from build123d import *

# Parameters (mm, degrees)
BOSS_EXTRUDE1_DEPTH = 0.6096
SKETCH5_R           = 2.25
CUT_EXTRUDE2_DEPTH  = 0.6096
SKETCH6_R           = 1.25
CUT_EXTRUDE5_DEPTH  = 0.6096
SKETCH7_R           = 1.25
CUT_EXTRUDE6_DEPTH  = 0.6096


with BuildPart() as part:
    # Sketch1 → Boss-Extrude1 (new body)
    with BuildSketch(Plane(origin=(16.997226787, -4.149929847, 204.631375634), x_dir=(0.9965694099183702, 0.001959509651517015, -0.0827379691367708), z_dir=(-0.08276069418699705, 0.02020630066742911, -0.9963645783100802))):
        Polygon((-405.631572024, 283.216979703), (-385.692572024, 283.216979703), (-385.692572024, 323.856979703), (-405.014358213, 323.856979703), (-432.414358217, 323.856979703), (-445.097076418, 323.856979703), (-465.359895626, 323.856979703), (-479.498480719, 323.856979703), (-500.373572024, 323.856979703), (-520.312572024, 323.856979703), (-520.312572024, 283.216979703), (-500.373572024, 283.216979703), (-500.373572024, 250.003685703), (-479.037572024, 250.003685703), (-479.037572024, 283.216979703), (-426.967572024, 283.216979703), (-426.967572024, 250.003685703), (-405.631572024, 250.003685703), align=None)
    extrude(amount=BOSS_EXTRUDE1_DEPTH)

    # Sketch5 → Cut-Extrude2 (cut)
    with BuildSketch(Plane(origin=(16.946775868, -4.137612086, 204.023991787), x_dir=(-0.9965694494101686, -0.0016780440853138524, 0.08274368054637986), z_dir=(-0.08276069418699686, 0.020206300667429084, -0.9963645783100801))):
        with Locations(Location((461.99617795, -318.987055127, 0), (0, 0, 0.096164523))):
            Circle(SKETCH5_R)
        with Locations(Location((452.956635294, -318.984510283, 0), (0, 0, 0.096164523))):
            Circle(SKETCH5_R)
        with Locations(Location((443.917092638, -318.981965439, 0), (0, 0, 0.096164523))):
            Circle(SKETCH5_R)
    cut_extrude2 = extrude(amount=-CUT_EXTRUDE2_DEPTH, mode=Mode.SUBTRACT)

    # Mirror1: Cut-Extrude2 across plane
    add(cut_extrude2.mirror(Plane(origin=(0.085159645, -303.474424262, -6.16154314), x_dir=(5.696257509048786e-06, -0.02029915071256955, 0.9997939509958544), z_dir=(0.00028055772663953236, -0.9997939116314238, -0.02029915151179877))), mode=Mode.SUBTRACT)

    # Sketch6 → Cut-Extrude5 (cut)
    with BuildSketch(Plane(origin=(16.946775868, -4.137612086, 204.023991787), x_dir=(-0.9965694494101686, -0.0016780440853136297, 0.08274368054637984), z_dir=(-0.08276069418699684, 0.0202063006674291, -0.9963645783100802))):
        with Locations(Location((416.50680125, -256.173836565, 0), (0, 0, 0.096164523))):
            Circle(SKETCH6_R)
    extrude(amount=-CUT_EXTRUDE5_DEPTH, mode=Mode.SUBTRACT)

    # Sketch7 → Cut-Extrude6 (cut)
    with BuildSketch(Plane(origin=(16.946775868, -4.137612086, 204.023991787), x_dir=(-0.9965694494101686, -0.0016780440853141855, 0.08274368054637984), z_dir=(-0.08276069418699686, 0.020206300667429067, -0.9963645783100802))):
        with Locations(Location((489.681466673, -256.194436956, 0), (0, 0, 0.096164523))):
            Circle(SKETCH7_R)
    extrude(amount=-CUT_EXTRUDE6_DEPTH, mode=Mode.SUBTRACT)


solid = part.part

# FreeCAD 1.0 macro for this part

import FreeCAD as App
import Part
import Sketcher

V = App.Vector
Q = App.Units.Quantity

doc = App.newDocument("Part")
body = doc.addObject("PartDesign::Body", "Body")

sketch1 = doc.addObject("Sketcher::SketchObject", "Sketch")
body.addObject(sketch1)
sketch1.Placement = App.Placement(V(16.997227, -4.14993, 204.631376), App.Rotation(V(0.99656941, 0.00195951, -0.082737969), V(0.000280558, -0.999793911, -0.020299152), V(-0.082760694, 0.020206301, -0.996364578), "ZXY"))
sketch1.addGeometry(Part.LineSegment(V(-406, 283, 0), V(-386, 283, 0)), False)
sketch1.addGeometry(Part.LineSegment(V(-386, 283, 0), V(-386, 324, 0)), False)
sketch1.addGeometry(Part.LineSegment(V(-386, 324, 0), V(-520, 324, 0)), False)
sketch1.addGeometry(Part.LineSegment(V(-520, 324, 0), V(-520, 283, 0)), False)
sketch1.addGeometry(Part.LineSegment(V(-520, 283, 0), V(-500, 283, 0)), False)
sketch1.addGeometry(Part.LineSegment(V(-500, 283, 0), V(-500, 250, 0)), False)
sketch1.addGeometry(Part.LineSegment(V(-500, 250, 0), V(-479, 250, 0)), False)
sketch1.addGeometry(Part.LineSegment(V(-479, 250, 0), V(-479, 283, 0)), False)
sketch1.addGeometry(Part.LineSegment(V(-479, 283, 0), V(-427, 283, 0)), False)
sketch1.addGeometry(Part.LineSegment(V(-427, 283, 0), V(-427, 250, 0)), False)
sketch1.addGeometry(Part.LineSegment(V(-427, 250, 0), V(-406, 250, 0)), False)
sketch1.addGeometry(Part.LineSegment(V(-406, 250, 0), V(-406, 283, 0)), False)
sketch1.addConstraint(Sketcher.Constraint("Coincident", 0, 2, 1, 1))
sketch1.addConstraint(Sketcher.Constraint("Coincident", 1, 2, 2, 1))
sketch1.addConstraint(Sketcher.Constraint("Coincident", 2, 2, 3, 1))
sketch1.addConstraint(Sketcher.Constraint("Coincident", 3, 2, 4, 1))
sketch1.addConstraint(Sketcher.Constraint("Coincident", 4, 2, 5, 1))
sketch1.addConstraint(Sketcher.Constraint("Coincident", 5, 2, 6, 1))
sketch1.addConstraint(Sketcher.Constraint("Coincident", 6, 2, 7, 1))
sketch1.addConstraint(Sketcher.Constraint("Coincident", 7, 2, 8, 1))
sketch1.addConstraint(Sketcher.Constraint("Coincident", 8, 2, 9, 1))
sketch1.addConstraint(Sketcher.Constraint("Coincident", 9, 2, 10, 1))
sketch1.addConstraint(Sketcher.Constraint("Coincident", 10, 2, 11, 1))
sketch1.addConstraint(Sketcher.Constraint("Coincident", 11, 2, 0, 1))
sketch1.addConstraint(Sketcher.Constraint("Horizontal", 0))
sketch1.addConstraint(Sketcher.Constraint("Vertical", 1))
sketch1.addConstraint(Sketcher.Constraint("Horizontal", 2))
sketch1.addConstraint(Sketcher.Constraint("Vertical", 3))
sketch1.addConstraint(Sketcher.Constraint("Horizontal", 4))
sketch1.addConstraint(Sketcher.Constraint("Vertical", 5))
sketch1.addConstraint(Sketcher.Constraint("Horizontal", 6))
sketch1.addConstraint(Sketcher.Constraint("Vertical", 7))
sketch1.addConstraint(Sketcher.Constraint("Horizontal", 8))
sketch1.addConstraint(Sketcher.Constraint("Vertical", 9))
sketch1.addConstraint(Sketcher.Constraint("Horizontal", 10))
sketch1.addConstraint(Sketcher.Constraint("Vertical", 11))
sketch1.addConstraint(Sketcher.Constraint("Horizontal", 0, 2, 3, 2))
sketch1.addConstraint(Sketcher.Constraint("Horizontal", 4, 2, 7, 2))
sketch1.addConstraint(Sketcher.Constraint("Horizontal", 6, 2, 9, 2))
sketch1.addConstraint(Sketcher.Constraint("Equal", 0, 4))
sketch1.addConstraint(Sketcher.Constraint("Equal", 6, 10))
sketch1.addConstraint(Sketcher.Constraint("DistanceX", 2, 2, 2, 1, Q("5.3 in")))
sketch1.addConstraint(Sketcher.Constraint("DistanceY", 1, 1, 1, 2, Q("1.6 in")))
sketch1.addConstraint(Sketcher.Constraint("DistanceX", 6, 1, 6, 2, Q("0.84 in")))
sketch1.addConstraint(Sketcher.Constraint("DistanceX", 8, 1, 8, 2, Q("2.05 in")))
sketch1.addConstraint(Sketcher.Constraint("DistanceY", 5, 2, 5, 1, Q("33.213294 mm")))
sketch1.addConstraint(Sketcher.Constraint("DistanceY", -1, 1, 0, 2, Q("283.21698 mm")))
sketch1.addConstraint(Sketcher.Constraint("DistanceX", 0, 2, -1, 1, Q("385.692572 mm")))
pad1 = doc.addObject("PartDesign::Pad", "Pad")
body.addObject(pad1)
pad1.Profile = sketch1
pad1.Length = Q("0.024 in")

sketch2 = doc.addObject("Sketcher::SketchObject", "Sketch001")
body.addObject(sketch2)
sketch2.Placement = App.Placement(V(16.946776, -4.137612, 204.023992), App.Rotation(V(-0.996569449, -0.001678044, 0.082743681), V(0, 0.999794423, 0.020275858), V(-0.082760694, 0.020206301, -0.996364578), "ZXY"))
sketch2.addGeometry(Part.Circle(V(462, -319, 0), V(0, 0, 1), 2.2), False)
sketch2.addGeometry(Part.Circle(V(453, -319, 0), V(0, 0, 1), 2.2), False)
sketch2.addGeometry(Part.Circle(V(443.9, -319, 0), V(0, 0, 1), 2.2), False)
sketch2.addConstraint(Sketcher.Constraint("Equal", 0, 1))
sketch2.addConstraint(Sketcher.Constraint("Equal", 1, 2))
sketch2.addConstraint(Sketcher.Constraint("Diameter", 0, Q("4.5 mm")))
sketch2.addConstraint(Sketcher.Constraint("DistanceY", 0, 3, 1, 3, Q("0.0001002 in")))
sketch2.addConstraint(Sketcher.Constraint("DistanceY", 1, 3, 2, 3, Q("0.0001002 in")))
sketch2.addConstraint(Sketcher.Constraint("DistanceY", 1, 3, -1, 1, Q("318.98451 mm")))
sketch2.addConstraint(Sketcher.Constraint("DistanceX", -1, 1, 0, 3, Q("461.996178 mm")))
sketch2.addConstraint(Sketcher.Constraint("DistanceX", -1, 1, 1, 3, Q("452.956635 mm")))
sketch2.addConstraint(Sketcher.Constraint("DistanceX", -1, 1, 2, 3, Q("443.917092 mm")))
pocket1 = doc.addObject("PartDesign::Pocket", "Pocket")
body.addObject(pocket1)
pocket1.Profile = sketch2
pocket1.Length = Q("0.024 in")
doc.recompute()

datumplane = doc.addObject("PartDesign::Plane", "DatumPlane")
body.addObject(datumplane)
datumplane.Placement = App.Placement(V(0.08516, -303.474424, -6.161543), App.Rotation(V(0, -0.020299153, 0.999793951), V(-0.999999961, -0.0002805, -0.000005695), V(0.000280558, -0.999793912, -0.020299152), "ZXY"))
mirrored = doc.addObject("PartDesign::Mirrored", "Mirrored")
body.addObject(mirrored)
mirrored.Originals = [pocket1]
mirrored.MirrorPlane = (datumplane, [""])
body.Tip = mirrored

sketch3 = doc.addObject("Sketcher::SketchObject", "Sketch002")
body.addObject(sketch3)
sketch3.Placement = App.Placement(V(16.946776, -4.137612, 204.023992), App.Rotation(V(-0.996569449, -0.001678044, 0.082743681), V(0, 0.999794423, 0.020275858), V(-0.082760694, 0.020206301, -0.996364578), "ZXY"))
sketch3.addGeometry(Part.Circle(V(416.5, -256.2, 0), V(0, 0, 1), 1.2), False)
sketch3.addConstraint(Sketcher.Constraint("Diameter", 0, Q("2.5 mm")))
sketch3.addConstraint(Sketcher.Constraint("DistanceX", -1, 1, 0, 3, Q("416.506801 mm")))
sketch3.addConstraint(Sketcher.Constraint("DistanceY", 0, 3, -1, 1, Q("256.173836 mm")))
pocket2 = doc.addObject("PartDesign::Pocket", "Pocket001")
body.addObject(pocket2)
pocket2.Profile = sketch3
pocket2.Length = Q("0.024 in")

sketch4 = doc.addObject("Sketcher::SketchObject", "Sketch003")
body.addObject(sketch4)
sketch4.Placement = App.Placement(V(16.946776, -4.137612, 204.023992), App.Rotation(V(-0.996569449, -0.001678044, 0.082743681), V(0, 0.999794423, 0.020275858), V(-0.082760694, 0.020206301, -0.996364578), "ZXY"))
sketch4.addGeometry(Part.Circle(V(489.7, -256.2, 0), V(0, 0, 1), 1.2), False)
sketch4.addConstraint(Sketcher.Constraint("Diameter", 0, Q("2.5 mm")))
sketch4.addConstraint(Sketcher.Constraint("DistanceX", -1, 1, 0, 3, Q("489.681466 mm")))
sketch4.addConstraint(Sketcher.Constraint("DistanceY", 0, 3, -1, 1, Q("256.194437 mm")))
pocket3 = doc.addObject("PartDesign::Pocket", "Pocket002")
body.addObject(pocket3)
pocket3.Profile = sketch4
pocket3.Length = Q("0.024 in")

doc.recompute()
